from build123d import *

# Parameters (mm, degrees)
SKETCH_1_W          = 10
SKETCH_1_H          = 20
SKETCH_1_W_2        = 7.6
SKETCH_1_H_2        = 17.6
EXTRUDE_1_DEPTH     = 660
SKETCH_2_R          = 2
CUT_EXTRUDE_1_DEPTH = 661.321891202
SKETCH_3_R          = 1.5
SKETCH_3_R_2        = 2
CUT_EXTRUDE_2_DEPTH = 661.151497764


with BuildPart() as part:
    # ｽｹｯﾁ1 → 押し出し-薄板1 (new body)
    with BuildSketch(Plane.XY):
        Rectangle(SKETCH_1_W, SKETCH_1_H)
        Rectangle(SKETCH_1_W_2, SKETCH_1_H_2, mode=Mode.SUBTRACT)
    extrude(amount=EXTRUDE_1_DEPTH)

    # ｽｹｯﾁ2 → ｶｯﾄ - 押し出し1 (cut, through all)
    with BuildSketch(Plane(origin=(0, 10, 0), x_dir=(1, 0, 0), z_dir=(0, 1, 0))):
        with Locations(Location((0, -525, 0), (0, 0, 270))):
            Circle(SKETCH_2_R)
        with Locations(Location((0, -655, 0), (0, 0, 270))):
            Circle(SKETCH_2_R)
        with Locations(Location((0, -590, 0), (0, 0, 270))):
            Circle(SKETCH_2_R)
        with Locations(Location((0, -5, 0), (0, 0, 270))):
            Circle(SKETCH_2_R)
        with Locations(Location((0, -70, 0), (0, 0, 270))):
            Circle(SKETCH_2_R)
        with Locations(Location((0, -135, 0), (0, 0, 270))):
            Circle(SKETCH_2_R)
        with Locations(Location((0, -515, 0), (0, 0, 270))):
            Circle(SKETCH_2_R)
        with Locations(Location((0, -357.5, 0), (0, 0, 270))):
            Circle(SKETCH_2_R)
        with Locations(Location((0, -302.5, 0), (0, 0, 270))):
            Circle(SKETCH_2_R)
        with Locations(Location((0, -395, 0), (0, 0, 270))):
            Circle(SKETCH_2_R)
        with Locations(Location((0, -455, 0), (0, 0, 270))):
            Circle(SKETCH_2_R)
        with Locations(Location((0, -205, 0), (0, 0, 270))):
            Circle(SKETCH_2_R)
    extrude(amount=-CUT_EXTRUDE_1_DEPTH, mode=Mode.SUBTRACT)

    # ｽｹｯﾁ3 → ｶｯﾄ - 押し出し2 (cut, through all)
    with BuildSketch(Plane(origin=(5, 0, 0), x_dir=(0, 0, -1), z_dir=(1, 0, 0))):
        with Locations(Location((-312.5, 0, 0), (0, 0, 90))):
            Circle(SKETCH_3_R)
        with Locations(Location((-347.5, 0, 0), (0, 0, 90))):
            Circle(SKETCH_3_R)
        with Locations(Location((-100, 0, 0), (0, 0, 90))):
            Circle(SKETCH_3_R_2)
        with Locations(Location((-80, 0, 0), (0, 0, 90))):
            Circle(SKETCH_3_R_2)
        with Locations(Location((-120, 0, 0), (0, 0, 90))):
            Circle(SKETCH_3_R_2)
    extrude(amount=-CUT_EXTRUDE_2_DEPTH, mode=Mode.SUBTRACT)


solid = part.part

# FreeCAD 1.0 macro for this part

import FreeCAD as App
import Part
import Sketcher
Q = App.Units.Quantity

doc = App.newDocument("Part")
body = doc.addObject("PartDesign::Body", "Body")

# Sketch on XY plane
sketch1 = doc.addObject("Sketcher::SketchObject", "Sketch")
body.addObject(sketch1)
sketch1.AttachmentSupport = (doc.XY_Plane, [""])
sketch1.MapMode = "FlatFace"
sketch1.addGeometry(Part.LineSegment(App.Vector(-5, 10, 0), App.Vector(-5, -10, 0)), False)
sketch1.addGeometry(Part.LineSegment(App.Vector(-5, -10, 0), App.Vector(5, -10, 0)), False)
sketch1.addGeometry(Part.LineSegment(App.Vector(5, -10, 0), App.Vector(5, 10, 0)), False)
sketch1.addGeometry(Part.LineSegment(App.Vector(5, 10, 0), App.Vector(-5, 10, 0)), False)
sketch1.addGeometry(Part.LineSegment(App.Vector(4, -9, 0), App.Vector(-4, -9, 0)), False)
sketch1.addGeometry(Part.LineSegment(App.Vector(-4, -9, 0), App.Vector(-4, 9, 0)), False)
sketch1.addGeometry(Part.LineSegment(App.Vector(-4, 9, 0), App.Vector(4, 9, 0)), False)
sketch1.addGeometry(Part.LineSegment(App.Vector(4, 9, 0), App.Vector(4, -9, 0)), False)
sketch1.addConstraint(Sketcher.Constraint("Coincident", 0, 2, 1, 1))
sketch1.addConstraint(Sketcher.Constraint("Coincident", 1, 2, 2, 1))
sketch1.addConstraint(Sketcher.Constraint("Coincident", 2, 2, 3, 1))
sketch1.addConstraint(Sketcher.Constraint("Coincident", 3, 2, 0, 1))
sketch1.addConstraint(Sketcher.Constraint("Coincident", 4, 2, 5, 1))
sketch1.addConstraint(Sketcher.Constraint("Coincident", 5, 2, 6, 1))
sketch1.addConstraint(Sketcher.Constraint("Coincident", 6, 2, 7, 1))
sketch1.addConstraint(Sketcher.Constraint("Coincident", 7, 2, 4, 1))
sketch1.addConstraint(Sketcher.Constraint("Vertical", 0))
sketch1.addConstraint(Sketcher.Constraint("Horizontal", 1))
sketch1.addConstraint(Sketcher.Constraint("Vertical", 2))
sketch1.addConstraint(Sketcher.Constraint("Horizontal", 3))
sketch1.addConstraint(Sketcher.Constraint("Horizontal", 4))
sketch1.addConstraint(Sketcher.Constraint("Vertical", 5))
sketch1.addConstraint(Sketcher.Constraint("Horizontal", 6))
sketch1.addConstraint(Sketcher.Constraint("Vertical", 7))
sketch1.addConstraint(Sketcher.Constraint("Symmetric", 0, 2, 2, 2, -1, 1))
sketch1.addConstraint(Sketcher.Constraint("Symmetric", 4, 2, 6, 2, -1, 1))
sketch1.addConstraint(Sketcher.Constraint("DistanceX", 1, 1, 1, 2, Q("10 mm")))
sketch1.addConstraint(Sketcher.Constraint("DistanceY", 0, 2, 0, 1, Q("20 mm")))
sketch1.addConstraint(Sketcher.Constraint("DistanceX", 4, 2, 4, 1, Q("7.6 mm")))
sketch1.addConstraint(Sketcher.Constraint("DistanceY", 5, 1, 5, 2, Q("17.6 mm")))
pad1 = doc.addObject("PartDesign::Pad", "Pad")
body.addObject(pad1)
pad1.Profile = sketch1
pad1.Length = 660

# Sketch on XZ plane
sketch2 = doc.addObject("Sketcher::SketchObject", "Sketch001")
body.addObject(sketch2)
sketch2.AttachmentSupport = (doc.XZ_Plane, [""])
sketch2.MapMode = "FlatFace"
sketch2.AttachmentOffset = App.Placement(App.Vector(0, 0, -10), App.Rotation())
sketch2.addGeometry(Part.Circle(App.Vector(0, 525, 0), App.Vector(0, 0, 1), 2), False)
sketch2.addGeometry(Part.Circle(App.Vector(0, 655, 0), App.Vector(0, 0, 1), 2), False)
sketch2.addGeometry(Part.Circle(App.Vector(0, 590, 0), App.Vector(0, 0, 1), 2), False)
sketch2.addGeometry(Part.Circle(App.Vector(0, 5, 0), App.Vector(0, 0, 1), 2), False)
sketch2.addGeometry(Part.Circle(App.Vector(0, 70, 0), App.Vector(0, 0, 1), 2), False)
sketch2.addGeometry(Part.Circle(App.Vector(0, 135, 0), App.Vector(0, 0, 1), 2), False)
sketch2.addGeometry(Part.Circle(App.Vector(0, 515, 0), App.Vector(0, 0, 1), 2), False)
sketch2.addGeometry(Part.Circle(App.Vector(0, 357.5, 0), App.Vector(0, 0, 1), 2), False)
sketch2.addGeometry(Part.Circle(App.Vector(0, 302.5, 0), App.Vector(0, 0, 1), 2), False)
sketch2.addGeometry(Part.Circle(App.Vector(0, 395, 0), App.Vector(0, 0, 1), 2), False)
sketch2.addGeometry(Part.Circle(App.Vector(0, 455, 0), App.Vector(0, 0, 1), 2), False)
sketch2.addGeometry(Part.Circle(App.Vector(0, 205, 0), App.Vector(0, 0, 1), 2), False)
sketch2.addConstraint(Sketcher.Constraint("Equal", 0, 1))
sketch2.addConstraint(Sketcher.Constraint("Equal", 1, 2))
sketch2.addConstraint(Sketcher.Constraint("Equal", 2, 3))
sketch2.addConstraint(Sketcher.Constraint("Equal", 3, 4))
sketch2.addConstraint(Sketcher.Constraint("Equal", 4, 5))
sketch2.addConstraint(Sketcher.Constraint("Equal", 5, 6))
sketch2.addConstraint(Sketcher.Constraint("Equal", 6, 7))
sketch2.addConstraint(Sketcher.Constraint("Equal", 7, 8))
sketch2.addConstraint(Sketcher.Constraint("Equal", 8, 9))
sketch2.addConstraint(Sketcher.Constraint("Equal", 9, 10))
sketch2.addConstraint(Sketcher.Constraint("Equal", 10, 11))
sketch2.addConstraint(Sketcher.Constraint("PointOnObject", 0, 3, -2))
sketch2.addConstraint(Sketcher.Constraint("PointOnObject", 1, 3, -2))
sketch2.addConstraint(Sketcher.Constraint("PointOnObject", 2, 3, -2))
sketch2.addConstraint(Sketcher.Constraint("PointOnObject", 3, 3, -2))
sketch2.addConstraint(Sketcher.Constraint("PointOnObject", 4, 3, -2))
sketch2.addConstraint(Sketcher.Constraint("PointOnObject", 5, 3, -2))
sketch2.addConstraint(Sketcher.Constraint("PointOnObject", 6, 3, -2))
sketch2.addConstraint(Sketcher.Constraint("PointOnObject", 7, 3, -2))
sketch2.addConstraint(Sketcher.Constraint("PointOnObject", 8, 3, -2))
sketch2.addConstraint(Sketcher.Constraint("PointOnObject", 9, 3, -2))
sketch2.addConstraint(Sketcher.Constraint("PointOnObject", 10, 3, -2))
sketch2.addConstraint(Sketcher.Constraint("PointOnObject", 11, 3, -2))
sketch2.addConstraint(Sketcher.Constraint("Diameter", 0, Q("4 mm")))
sketch2.addConstraint(Sketcher.Constraint("DistanceY", -1, 1, 0, 3, Q("525 mm")))
sketch2.addConstraint(Sketcher.Constraint("DistanceY", -1, 1, 1, 3, Q("655 mm")))
sketch2.addConstraint(Sketcher.Constraint("DistanceY", -1, 1, 2, 3, Q("590 mm")))
sketch2.addConstraint(Sketcher.Constraint("DistanceY", -1, 1, 3, 3, Q("5 mm")))
sketch2.addConstraint(Sketcher.Constraint("DistanceY", -1, 1, 4, 3, Q("70 mm")))
sketch2.addConstraint(Sketcher.Constraint("DistanceY", -1, 1, 5, 3, Q("135 mm")))
sketch2.addConstraint(Sketcher.Constraint("DistanceY", -1, 1, 6, 3, Q("515 mm")))
sketch2.addConstraint(Sketcher.Constraint("DistanceY", -1, 1, 9, 3, Q("395 mm")))
sketch2.addConstraint(Sketcher.Constraint("DistanceY", -1, 1, 10, 3, Q("455 mm")))
sketch2.addConstraint(Sketcher.Constraint("DistanceY", -1, 1, 11, 3, Q("205 mm")))
sketch2.addConstraint(Sketcher.Constraint("DistanceY", 8, 3, 7, 3, Q("55 mm")))
sketch2.addConstraint(Sketcher.Constraint("DistanceY", -1, 1, 7, 3, Q("357.5 mm")))
pocket1 = doc.addObject("PartDesign::Pocket", "Pocket")
body.addObject(pocket1)
pocket1.Profile = sketch2
pocket1.Type = "ThroughAll"
pocket1.Reversed = True

# Sketch on YZ plane
sketch3 = doc.addObject("Sketcher::SketchObject", "Sketch002")
body.addObject(sketch3)
sketch3.AttachmentSupport = (doc.YZ_Plane, [""])
sketch3.MapMode = "FlatFace"
sketch3.AttachmentOffset = App.Placement(App.Vector(0, 0, 5), App.Rotation())
sketch3.addGeometry(Part.Circle(App.Vector(0, 312.5, 0), App.Vector(0, 0, 1), 1.5), False)
sketch3.addGeometry(Part.Circle(App.Vector(0, 347.5, 0), App.Vector(0, 0, 1), 1.5), False)
sketch3.addGeometry(Part.Circle(App.Vector(0, 100, 0), App.Vector(0, 0, 1), 2), False)
sketch3.addGeometry(Part.Circle(App.Vector(0, 80, 0), App.Vector(0, 0, 1), 2), False)
sketch3.addGeometry(Part.Circle(App.Vector(0, 120, 0), App.Vector(0, 0, 1), 2), False)
sketch3.addConstraint(Sketcher.Constraint("Equal", 0, 1))
sketch3.addConstraint(Sketcher.Constraint("Equal", 2, 3))
sketch3.addConstraint(Sketcher.Constraint("Equal", 3, 4))
sketch3.addConstraint(Sketcher.Constraint("PointOnObject", 0, 3, -2))
sketch3.addConstraint(Sketcher.Constraint("PointOnObject", 1, 3, -2))
sketch3.addConstraint(Sketcher.Constraint("PointOnObject", 2, 3, -2))
sketch3.addConstraint(Sketcher.Constraint("PointOnObject", 3, 3, -2))
sketch3.addConstraint(Sketcher.Constraint("PointOnObject", 4, 3, -2))
sketch3.addConstraint(Sketcher.Constraint("Diameter", 0, Q("3 mm")))
sketch3.addConstraint(Sketcher.Constraint("Diameter", 2, Q("4 mm")))
sketch3.addConstraint(Sketcher.Constraint("DistanceY", -1, 1, 2, 3, Q("100 mm")))
sketch3.addConstraint(Sketcher.Constraint("DistanceY", -1, 1, 3, 3, Q("80 mm")))
sketch3.addConstraint(Sketcher.Constraint("DistanceY", -1, 1, 4, 3, Q("120 mm")))
sketch3.addConstraint(Sketcher.Constraint("DistanceY", 0, 3, 1, 3, Q("35 mm")))
sketch3.addConstraint(Sketcher.Constraint("DistanceY", -1, 1, 0, 3, Q("312.5 mm")))
pocket2 = doc.addObject("PartDesign::Pocket", "Pocket001")
body.addObject(pocket2)
pocket2.Profile = sketch3
pocket2.Type = "ThroughAll"

doc.recompute()
